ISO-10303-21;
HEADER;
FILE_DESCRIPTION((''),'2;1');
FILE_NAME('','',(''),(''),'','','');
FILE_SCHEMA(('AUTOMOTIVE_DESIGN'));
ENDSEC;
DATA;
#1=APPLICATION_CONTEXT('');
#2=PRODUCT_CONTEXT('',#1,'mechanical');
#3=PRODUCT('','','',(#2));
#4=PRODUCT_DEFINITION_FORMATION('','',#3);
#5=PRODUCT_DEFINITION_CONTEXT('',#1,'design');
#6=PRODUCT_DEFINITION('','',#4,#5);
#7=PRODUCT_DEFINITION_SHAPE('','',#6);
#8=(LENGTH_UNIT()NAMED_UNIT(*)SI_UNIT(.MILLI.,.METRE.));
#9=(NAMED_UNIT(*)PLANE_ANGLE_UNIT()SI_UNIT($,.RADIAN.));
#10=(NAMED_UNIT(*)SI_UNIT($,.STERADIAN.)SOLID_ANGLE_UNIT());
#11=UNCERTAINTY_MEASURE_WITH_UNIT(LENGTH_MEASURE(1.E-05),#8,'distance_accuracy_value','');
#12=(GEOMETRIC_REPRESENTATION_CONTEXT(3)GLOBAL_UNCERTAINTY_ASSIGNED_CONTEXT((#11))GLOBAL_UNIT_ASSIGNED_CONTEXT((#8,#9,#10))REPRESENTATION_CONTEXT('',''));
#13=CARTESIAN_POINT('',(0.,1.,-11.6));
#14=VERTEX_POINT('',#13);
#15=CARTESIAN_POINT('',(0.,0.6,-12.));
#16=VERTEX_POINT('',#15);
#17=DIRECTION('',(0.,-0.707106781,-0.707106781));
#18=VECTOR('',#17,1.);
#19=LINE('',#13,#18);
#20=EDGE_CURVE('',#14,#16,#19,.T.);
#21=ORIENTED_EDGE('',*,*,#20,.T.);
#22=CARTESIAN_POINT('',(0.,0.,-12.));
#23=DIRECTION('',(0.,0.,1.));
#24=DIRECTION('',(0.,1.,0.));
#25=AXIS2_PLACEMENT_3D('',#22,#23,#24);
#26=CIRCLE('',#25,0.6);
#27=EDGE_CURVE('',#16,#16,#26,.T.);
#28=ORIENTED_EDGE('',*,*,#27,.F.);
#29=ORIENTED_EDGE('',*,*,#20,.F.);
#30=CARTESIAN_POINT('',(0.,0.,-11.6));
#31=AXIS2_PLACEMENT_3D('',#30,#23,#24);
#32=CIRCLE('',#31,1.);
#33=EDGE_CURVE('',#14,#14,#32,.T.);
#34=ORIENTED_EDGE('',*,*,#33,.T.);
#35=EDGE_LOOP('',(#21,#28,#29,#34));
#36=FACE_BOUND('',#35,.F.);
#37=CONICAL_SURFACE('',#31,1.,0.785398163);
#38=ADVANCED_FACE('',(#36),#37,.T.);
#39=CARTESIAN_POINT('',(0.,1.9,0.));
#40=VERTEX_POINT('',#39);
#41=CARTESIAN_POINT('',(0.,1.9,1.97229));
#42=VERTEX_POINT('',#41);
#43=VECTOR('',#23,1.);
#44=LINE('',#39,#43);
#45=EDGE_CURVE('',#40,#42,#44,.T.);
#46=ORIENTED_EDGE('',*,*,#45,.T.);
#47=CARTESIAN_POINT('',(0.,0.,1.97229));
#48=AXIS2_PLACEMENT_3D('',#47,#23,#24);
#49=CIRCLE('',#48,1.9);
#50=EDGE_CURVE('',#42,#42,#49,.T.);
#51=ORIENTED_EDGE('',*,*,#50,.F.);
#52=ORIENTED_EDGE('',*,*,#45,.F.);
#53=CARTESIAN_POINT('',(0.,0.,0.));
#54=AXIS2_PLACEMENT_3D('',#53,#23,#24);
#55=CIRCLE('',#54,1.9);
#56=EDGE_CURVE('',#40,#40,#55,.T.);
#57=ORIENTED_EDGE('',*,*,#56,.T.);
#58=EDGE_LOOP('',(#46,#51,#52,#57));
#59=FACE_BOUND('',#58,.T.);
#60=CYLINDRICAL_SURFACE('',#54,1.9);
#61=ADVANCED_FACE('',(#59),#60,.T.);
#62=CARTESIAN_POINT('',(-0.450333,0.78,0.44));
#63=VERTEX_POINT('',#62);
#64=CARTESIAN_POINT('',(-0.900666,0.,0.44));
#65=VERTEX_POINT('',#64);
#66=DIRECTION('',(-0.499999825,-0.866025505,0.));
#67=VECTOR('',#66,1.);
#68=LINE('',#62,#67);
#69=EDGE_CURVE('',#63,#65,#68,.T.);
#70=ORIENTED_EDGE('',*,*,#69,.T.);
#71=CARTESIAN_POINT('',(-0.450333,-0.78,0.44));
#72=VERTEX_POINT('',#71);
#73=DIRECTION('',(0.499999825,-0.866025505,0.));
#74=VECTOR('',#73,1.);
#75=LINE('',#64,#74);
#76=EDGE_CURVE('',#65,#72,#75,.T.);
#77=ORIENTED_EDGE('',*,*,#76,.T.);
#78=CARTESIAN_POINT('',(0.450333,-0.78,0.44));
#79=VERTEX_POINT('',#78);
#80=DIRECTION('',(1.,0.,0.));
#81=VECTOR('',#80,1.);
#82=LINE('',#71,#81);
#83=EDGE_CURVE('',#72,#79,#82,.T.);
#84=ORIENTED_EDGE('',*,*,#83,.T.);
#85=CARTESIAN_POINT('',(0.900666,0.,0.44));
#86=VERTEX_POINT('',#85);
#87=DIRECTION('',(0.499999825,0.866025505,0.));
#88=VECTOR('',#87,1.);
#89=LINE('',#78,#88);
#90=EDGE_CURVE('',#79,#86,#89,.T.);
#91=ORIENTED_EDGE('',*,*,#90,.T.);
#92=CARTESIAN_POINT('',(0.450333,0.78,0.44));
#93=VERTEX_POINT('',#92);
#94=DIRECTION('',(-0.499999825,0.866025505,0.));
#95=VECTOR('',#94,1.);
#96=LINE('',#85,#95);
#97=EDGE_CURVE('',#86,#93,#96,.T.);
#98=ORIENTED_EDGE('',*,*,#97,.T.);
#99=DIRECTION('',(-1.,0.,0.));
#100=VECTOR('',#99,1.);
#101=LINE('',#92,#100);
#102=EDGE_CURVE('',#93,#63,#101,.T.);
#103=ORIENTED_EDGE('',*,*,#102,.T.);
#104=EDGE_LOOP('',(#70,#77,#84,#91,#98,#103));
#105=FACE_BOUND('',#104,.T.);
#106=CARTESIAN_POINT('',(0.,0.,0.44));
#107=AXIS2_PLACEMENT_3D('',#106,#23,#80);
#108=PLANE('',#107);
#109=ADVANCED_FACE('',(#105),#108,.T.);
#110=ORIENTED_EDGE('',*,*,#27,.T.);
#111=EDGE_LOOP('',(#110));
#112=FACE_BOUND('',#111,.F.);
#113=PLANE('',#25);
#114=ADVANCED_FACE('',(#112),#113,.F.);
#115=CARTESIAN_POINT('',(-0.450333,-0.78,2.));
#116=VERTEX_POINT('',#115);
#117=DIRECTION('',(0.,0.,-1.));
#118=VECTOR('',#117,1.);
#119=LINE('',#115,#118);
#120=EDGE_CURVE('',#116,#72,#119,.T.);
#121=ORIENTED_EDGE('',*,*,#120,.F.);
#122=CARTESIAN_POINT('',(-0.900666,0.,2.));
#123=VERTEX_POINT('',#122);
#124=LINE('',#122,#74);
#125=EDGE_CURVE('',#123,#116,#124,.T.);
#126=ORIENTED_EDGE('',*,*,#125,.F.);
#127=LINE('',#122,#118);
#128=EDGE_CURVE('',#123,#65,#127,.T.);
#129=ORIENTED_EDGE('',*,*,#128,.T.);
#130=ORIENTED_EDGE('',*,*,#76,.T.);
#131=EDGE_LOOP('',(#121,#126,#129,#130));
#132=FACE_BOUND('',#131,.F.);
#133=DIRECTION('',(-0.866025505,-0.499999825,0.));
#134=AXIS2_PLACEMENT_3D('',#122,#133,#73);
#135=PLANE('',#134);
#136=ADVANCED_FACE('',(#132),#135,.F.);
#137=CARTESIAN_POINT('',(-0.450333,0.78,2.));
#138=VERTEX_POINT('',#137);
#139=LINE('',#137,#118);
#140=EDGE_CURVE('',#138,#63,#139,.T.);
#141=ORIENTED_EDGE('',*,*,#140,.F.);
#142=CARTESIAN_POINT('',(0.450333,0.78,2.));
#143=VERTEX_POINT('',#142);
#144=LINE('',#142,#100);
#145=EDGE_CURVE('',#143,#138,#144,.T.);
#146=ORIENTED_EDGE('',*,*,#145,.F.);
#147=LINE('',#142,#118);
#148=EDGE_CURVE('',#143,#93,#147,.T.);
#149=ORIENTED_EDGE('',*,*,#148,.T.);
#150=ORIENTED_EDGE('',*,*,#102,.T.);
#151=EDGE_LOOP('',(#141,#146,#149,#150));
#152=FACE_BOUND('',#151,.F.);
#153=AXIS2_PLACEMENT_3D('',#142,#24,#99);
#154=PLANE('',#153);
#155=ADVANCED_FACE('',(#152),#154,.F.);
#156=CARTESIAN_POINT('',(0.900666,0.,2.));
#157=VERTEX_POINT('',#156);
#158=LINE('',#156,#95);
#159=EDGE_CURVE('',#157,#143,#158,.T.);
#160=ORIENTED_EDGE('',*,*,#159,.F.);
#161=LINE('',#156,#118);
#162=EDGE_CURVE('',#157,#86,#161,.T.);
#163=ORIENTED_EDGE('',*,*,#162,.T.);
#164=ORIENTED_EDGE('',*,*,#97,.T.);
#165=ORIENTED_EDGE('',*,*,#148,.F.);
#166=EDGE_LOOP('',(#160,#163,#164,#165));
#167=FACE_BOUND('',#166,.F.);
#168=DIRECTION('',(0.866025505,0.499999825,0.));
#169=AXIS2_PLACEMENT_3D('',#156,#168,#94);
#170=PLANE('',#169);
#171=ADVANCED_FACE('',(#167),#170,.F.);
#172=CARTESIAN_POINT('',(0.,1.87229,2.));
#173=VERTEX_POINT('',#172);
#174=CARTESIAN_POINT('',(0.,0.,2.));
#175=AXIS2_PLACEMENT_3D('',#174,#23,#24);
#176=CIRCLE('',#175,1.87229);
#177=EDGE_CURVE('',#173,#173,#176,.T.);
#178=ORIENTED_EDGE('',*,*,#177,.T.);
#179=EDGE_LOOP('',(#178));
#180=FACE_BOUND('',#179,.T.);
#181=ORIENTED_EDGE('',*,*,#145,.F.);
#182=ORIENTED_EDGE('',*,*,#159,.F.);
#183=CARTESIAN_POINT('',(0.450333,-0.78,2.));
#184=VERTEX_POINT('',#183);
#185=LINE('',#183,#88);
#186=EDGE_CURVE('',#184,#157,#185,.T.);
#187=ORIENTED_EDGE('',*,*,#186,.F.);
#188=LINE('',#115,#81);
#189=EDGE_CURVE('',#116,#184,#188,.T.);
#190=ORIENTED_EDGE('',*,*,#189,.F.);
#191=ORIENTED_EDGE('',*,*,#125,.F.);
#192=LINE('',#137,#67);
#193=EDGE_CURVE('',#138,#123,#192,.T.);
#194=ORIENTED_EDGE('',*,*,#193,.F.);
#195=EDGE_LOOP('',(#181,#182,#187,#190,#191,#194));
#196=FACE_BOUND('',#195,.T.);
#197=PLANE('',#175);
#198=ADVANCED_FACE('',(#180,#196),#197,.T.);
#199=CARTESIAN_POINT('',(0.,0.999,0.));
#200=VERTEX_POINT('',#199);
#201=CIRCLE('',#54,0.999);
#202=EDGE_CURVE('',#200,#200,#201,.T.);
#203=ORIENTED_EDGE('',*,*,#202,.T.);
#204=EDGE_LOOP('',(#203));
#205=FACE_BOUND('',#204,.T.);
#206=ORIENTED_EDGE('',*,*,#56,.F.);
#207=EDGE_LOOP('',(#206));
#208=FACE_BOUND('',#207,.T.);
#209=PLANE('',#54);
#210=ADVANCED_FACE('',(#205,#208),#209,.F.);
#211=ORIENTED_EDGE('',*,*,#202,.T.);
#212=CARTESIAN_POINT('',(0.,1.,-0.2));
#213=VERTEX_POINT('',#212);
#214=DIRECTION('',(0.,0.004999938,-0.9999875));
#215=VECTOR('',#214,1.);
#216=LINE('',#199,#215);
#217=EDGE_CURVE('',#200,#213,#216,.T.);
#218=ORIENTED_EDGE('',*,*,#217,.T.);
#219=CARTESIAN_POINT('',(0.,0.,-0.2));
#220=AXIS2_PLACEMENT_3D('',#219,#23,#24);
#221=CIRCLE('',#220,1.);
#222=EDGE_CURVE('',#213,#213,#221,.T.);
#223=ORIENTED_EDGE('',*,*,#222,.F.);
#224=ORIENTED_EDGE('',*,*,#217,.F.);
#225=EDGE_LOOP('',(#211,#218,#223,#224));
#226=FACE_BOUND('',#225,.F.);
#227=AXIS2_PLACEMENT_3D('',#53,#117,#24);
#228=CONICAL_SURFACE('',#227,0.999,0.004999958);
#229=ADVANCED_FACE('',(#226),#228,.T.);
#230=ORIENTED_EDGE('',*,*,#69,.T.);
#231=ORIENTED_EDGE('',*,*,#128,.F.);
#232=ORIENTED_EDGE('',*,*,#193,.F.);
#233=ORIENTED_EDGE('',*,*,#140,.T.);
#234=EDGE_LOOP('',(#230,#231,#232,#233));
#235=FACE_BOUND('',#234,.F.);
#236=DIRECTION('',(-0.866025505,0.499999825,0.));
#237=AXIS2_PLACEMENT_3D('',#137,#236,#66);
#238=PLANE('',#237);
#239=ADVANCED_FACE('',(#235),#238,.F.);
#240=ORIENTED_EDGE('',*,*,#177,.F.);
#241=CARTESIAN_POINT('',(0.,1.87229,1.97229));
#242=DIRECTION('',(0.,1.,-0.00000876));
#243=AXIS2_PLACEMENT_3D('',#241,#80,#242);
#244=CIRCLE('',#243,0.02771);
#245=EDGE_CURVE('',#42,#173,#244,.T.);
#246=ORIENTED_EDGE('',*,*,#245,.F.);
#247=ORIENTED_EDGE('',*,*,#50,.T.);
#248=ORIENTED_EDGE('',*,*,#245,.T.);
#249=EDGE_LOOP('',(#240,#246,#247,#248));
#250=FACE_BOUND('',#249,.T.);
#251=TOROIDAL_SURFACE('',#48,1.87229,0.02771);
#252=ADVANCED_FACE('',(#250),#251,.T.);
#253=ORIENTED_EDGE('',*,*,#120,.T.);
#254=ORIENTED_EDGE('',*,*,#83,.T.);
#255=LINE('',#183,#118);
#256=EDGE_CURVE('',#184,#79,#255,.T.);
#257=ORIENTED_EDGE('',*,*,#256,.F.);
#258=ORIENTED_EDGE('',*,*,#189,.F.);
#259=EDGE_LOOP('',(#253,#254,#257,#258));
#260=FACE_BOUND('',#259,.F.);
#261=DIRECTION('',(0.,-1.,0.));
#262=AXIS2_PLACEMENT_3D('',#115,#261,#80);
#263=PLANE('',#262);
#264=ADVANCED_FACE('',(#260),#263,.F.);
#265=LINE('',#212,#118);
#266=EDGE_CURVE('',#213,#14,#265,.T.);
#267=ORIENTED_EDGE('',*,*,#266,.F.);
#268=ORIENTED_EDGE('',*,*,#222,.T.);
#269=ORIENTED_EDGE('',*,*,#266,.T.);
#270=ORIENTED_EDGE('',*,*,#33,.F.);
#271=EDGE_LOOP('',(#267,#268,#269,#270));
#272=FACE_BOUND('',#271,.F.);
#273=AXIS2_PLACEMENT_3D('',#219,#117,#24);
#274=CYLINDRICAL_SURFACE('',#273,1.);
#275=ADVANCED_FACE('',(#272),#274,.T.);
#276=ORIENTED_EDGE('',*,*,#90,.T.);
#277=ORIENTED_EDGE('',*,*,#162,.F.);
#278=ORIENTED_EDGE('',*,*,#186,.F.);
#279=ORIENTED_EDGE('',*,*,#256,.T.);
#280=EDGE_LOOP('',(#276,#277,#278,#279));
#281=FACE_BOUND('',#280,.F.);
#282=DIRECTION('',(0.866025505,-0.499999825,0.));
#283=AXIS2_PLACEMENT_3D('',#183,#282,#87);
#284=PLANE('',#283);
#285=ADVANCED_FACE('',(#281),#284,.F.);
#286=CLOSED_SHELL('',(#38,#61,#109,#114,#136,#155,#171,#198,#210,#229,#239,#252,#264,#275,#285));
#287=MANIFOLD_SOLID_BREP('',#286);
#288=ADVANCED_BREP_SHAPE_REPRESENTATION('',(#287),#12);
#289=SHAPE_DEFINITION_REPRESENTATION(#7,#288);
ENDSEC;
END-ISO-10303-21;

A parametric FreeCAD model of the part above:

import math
import FreeCAD as App
import Part
import Sketcher
from FreeCAD import Vector
Q = App.Units.Quantity

doc = App.newDocument("Part")
body = doc.addObject("PartDesign::Body", "Body")

# Sketch on YZ plane
sketch1 = body.newObject("Sketcher::SketchObject", "Sketch")
sketch1.AttachmentSupport = (doc.getObject("YZ_Plane"), [""])
sketch1.MapMode = "FlatFace"
sketch1.addGeometry([
    Part.LineSegment(Vector(0.999, 0, 0), Vector(1.9, 0, 0)),  # 0
    Part.LineSegment(Vector(1.9, 0, 0), Vector(1.9, 1.97229, 0)),  # 1
    Part.ArcOfCircle(Part.Circle(Vector(1.87229, 1.97229, 0), Vector(0, 0, 1), 0.02771), math.radians(-0.000502), math.radians(90.000502)),  # 2
    Part.LineSegment(Vector(1.87229, 2, 0), Vector(0, 2, 0)),  # 3
    Part.LineSegment(Vector(0, 2, 0), Vector(0, -12, 0)),  # 4
    Part.LineSegment(Vector(0, -12, 0), Vector(0.6, -12, 0)),  # 5
    Part.LineSegment(Vector(0.6, -12, 0), Vector(1, -11.6, 0)),  # 6
    Part.LineSegment(Vector(1, -11.6, 0), Vector(1, -0.2, 0)),  # 7
    Part.LineSegment(Vector(1, -0.2, 0), Vector(0.999, 0, 0)),  # 8
], False)
sketch1.addConstraint([
    Sketcher.Constraint("Coincident", 0, 2, 1, 1),
    Sketcher.Constraint("Coincident", 1, 2, 2, 1),
    Sketcher.Constraint("Coincident", 2, 2, 3, 1),
    Sketcher.Constraint("Coincident", 3, 2, 4, 1),
    Sketcher.Constraint("Coincident", 4, 2, 5, 1),
    Sketcher.Constraint("Coincident", 5, 2, 6, 1),
    Sketcher.Constraint("Coincident", 6, 2, 7, 1),
    Sketcher.Constraint("Coincident", 7, 2, 8, 1),
    Sketcher.Constraint("Coincident", 8, 2, 0, 1),
    Sketcher.Constraint("Horizontal", 0),
    Sketcher.Constraint("Vertical", 1),
    Sketcher.Constraint("Horizontal", 3),
    Sketcher.Constraint("Vertical", 4),
    Sketcher.Constraint("Horizontal", 5),
    Sketcher.Constraint("Vertical", 7),
    Sketcher.Constraint("PointOnObject", 0, 2, -1),
    Sketcher.Constraint("PointOnObject", 3, 2, -2),
    Sketcher.Constraint("Horizontal", 2, 3, 1, 2),
    Sketcher.Constraint("DistanceY", 4, 2, 4, 1, Q("14 mm")),
    Sketcher.Constraint("Angle", 6, Q("45 deg")),
    Sketcher.Constraint("DistanceX", 5, 1, 5, 2, Q("0.6 mm")),
    Sketcher.Constraint("DistanceY", 7, 1, 7, 2, Q("11.4 mm")),
    Sketcher.Constraint("DistanceY", -1, 1, 2, 2, Q("2 mm")),
    Sketcher.Constraint("DistanceX", -1, 1, 6, 2, Q("1 mm")),
    Sketcher.Constraint("DistanceX", -1, 1, 0, 2, Q("1.9 mm")),
    Sketcher.Constraint("DistanceX", 0, 1, 0, 2, Q("0.901 mm")),
    Sketcher.Constraint("Radius", 2, Q("0.02771 mm")),
    Sketcher.Constraint("DistanceX", 3, 2, 3, 1, Q("1.87229 mm")),
])
revolution = body.newObject("PartDesign::Revolution", "Revolution")
revolution.Profile = sketch1
revolution.ReferenceAxis = (sketch1, ["V_Axis"])
revolution.Angle = 360

# Sketch on XY plane
sketch2 = body.newObject("Sketcher::SketchObject", "Sketch001")
sketch2.AttachmentSupport = (doc.getObject("XY_Plane"), [""])
sketch2.MapMode = "FlatFace"
sketch2.AttachmentOffset = App.Placement(Vector(0, 0, 2), App.Rotation())
sketch2.addGeometry([
    Part.LineSegment(Vector(0.900666, 0, 0), Vector(0.450333, 0.78, 0)),  # 0
    Part.LineSegment(Vector(0.450333, 0.78, 0), Vector(-0.450333, 0.78, 0)),  # 1
    Part.LineSegment(Vector(-0.450333, 0.78, 0), Vector(-0.900666, 0, 0)),  # 2
    Part.LineSegment(Vector(-0.900666, 0, 0), Vector(-0.450333, -0.78, 0)),  # 3
    Part.LineSegment(Vector(-0.450333, -0.78, 0), Vector(0.450333, -0.78, 0)),  # 4
    Part.LineSegment(Vector(0.450333, -0.78, 0), Vector(0.900666, 0, 0)),  # 5
], False)
sketch2.addConstraint([
    Sketcher.Constraint("Coincident", 0, 2, 1, 1),
    Sketcher.Constraint("Coincident", 1, 2, 2, 1),
    Sketcher.Constraint("Coincident", 2, 2, 3, 1),
    Sketcher.Constraint("Coincident", 3, 2, 4, 1),
    Sketcher.Constraint("Coincident", 4, 2, 5, 1),
    Sketcher.Constraint("Coincident", 5, 2, 0, 1),
    Sketcher.Constraint("Horizontal", 1),
    Sketcher.Constraint("Horizontal", 4),
    Sketcher.Constraint("Symmetric", 0, 2, 3, 2, -1, 1),
    Sketcher.Constraint("Symmetric", 2, 2, 5, 2, -1, 1),
    Sketcher.Constraint("PointOnObject", 2, 2, -1),
    Sketcher.Constraint("Parallel", 2, 5),
    Sketcher.Constraint("Vertical", 1, 2, 3, 2),
    Sketcher.Constraint("Angle", 0, Q("119.999988 deg")),
    Sketcher.Constraint("DistanceY", -1, 1, 0, 2, Q("0.78 mm")),
    Sketcher.Constraint("DistanceX", 2, 2, 0, 2, Q("1.350999 mm")),
])
pocket1 = body.newObject("PartDesign::Pocket", "Pocket")
pocket1.Profile = sketch2
pocket1.Length = 1.56

doc.recompute()
